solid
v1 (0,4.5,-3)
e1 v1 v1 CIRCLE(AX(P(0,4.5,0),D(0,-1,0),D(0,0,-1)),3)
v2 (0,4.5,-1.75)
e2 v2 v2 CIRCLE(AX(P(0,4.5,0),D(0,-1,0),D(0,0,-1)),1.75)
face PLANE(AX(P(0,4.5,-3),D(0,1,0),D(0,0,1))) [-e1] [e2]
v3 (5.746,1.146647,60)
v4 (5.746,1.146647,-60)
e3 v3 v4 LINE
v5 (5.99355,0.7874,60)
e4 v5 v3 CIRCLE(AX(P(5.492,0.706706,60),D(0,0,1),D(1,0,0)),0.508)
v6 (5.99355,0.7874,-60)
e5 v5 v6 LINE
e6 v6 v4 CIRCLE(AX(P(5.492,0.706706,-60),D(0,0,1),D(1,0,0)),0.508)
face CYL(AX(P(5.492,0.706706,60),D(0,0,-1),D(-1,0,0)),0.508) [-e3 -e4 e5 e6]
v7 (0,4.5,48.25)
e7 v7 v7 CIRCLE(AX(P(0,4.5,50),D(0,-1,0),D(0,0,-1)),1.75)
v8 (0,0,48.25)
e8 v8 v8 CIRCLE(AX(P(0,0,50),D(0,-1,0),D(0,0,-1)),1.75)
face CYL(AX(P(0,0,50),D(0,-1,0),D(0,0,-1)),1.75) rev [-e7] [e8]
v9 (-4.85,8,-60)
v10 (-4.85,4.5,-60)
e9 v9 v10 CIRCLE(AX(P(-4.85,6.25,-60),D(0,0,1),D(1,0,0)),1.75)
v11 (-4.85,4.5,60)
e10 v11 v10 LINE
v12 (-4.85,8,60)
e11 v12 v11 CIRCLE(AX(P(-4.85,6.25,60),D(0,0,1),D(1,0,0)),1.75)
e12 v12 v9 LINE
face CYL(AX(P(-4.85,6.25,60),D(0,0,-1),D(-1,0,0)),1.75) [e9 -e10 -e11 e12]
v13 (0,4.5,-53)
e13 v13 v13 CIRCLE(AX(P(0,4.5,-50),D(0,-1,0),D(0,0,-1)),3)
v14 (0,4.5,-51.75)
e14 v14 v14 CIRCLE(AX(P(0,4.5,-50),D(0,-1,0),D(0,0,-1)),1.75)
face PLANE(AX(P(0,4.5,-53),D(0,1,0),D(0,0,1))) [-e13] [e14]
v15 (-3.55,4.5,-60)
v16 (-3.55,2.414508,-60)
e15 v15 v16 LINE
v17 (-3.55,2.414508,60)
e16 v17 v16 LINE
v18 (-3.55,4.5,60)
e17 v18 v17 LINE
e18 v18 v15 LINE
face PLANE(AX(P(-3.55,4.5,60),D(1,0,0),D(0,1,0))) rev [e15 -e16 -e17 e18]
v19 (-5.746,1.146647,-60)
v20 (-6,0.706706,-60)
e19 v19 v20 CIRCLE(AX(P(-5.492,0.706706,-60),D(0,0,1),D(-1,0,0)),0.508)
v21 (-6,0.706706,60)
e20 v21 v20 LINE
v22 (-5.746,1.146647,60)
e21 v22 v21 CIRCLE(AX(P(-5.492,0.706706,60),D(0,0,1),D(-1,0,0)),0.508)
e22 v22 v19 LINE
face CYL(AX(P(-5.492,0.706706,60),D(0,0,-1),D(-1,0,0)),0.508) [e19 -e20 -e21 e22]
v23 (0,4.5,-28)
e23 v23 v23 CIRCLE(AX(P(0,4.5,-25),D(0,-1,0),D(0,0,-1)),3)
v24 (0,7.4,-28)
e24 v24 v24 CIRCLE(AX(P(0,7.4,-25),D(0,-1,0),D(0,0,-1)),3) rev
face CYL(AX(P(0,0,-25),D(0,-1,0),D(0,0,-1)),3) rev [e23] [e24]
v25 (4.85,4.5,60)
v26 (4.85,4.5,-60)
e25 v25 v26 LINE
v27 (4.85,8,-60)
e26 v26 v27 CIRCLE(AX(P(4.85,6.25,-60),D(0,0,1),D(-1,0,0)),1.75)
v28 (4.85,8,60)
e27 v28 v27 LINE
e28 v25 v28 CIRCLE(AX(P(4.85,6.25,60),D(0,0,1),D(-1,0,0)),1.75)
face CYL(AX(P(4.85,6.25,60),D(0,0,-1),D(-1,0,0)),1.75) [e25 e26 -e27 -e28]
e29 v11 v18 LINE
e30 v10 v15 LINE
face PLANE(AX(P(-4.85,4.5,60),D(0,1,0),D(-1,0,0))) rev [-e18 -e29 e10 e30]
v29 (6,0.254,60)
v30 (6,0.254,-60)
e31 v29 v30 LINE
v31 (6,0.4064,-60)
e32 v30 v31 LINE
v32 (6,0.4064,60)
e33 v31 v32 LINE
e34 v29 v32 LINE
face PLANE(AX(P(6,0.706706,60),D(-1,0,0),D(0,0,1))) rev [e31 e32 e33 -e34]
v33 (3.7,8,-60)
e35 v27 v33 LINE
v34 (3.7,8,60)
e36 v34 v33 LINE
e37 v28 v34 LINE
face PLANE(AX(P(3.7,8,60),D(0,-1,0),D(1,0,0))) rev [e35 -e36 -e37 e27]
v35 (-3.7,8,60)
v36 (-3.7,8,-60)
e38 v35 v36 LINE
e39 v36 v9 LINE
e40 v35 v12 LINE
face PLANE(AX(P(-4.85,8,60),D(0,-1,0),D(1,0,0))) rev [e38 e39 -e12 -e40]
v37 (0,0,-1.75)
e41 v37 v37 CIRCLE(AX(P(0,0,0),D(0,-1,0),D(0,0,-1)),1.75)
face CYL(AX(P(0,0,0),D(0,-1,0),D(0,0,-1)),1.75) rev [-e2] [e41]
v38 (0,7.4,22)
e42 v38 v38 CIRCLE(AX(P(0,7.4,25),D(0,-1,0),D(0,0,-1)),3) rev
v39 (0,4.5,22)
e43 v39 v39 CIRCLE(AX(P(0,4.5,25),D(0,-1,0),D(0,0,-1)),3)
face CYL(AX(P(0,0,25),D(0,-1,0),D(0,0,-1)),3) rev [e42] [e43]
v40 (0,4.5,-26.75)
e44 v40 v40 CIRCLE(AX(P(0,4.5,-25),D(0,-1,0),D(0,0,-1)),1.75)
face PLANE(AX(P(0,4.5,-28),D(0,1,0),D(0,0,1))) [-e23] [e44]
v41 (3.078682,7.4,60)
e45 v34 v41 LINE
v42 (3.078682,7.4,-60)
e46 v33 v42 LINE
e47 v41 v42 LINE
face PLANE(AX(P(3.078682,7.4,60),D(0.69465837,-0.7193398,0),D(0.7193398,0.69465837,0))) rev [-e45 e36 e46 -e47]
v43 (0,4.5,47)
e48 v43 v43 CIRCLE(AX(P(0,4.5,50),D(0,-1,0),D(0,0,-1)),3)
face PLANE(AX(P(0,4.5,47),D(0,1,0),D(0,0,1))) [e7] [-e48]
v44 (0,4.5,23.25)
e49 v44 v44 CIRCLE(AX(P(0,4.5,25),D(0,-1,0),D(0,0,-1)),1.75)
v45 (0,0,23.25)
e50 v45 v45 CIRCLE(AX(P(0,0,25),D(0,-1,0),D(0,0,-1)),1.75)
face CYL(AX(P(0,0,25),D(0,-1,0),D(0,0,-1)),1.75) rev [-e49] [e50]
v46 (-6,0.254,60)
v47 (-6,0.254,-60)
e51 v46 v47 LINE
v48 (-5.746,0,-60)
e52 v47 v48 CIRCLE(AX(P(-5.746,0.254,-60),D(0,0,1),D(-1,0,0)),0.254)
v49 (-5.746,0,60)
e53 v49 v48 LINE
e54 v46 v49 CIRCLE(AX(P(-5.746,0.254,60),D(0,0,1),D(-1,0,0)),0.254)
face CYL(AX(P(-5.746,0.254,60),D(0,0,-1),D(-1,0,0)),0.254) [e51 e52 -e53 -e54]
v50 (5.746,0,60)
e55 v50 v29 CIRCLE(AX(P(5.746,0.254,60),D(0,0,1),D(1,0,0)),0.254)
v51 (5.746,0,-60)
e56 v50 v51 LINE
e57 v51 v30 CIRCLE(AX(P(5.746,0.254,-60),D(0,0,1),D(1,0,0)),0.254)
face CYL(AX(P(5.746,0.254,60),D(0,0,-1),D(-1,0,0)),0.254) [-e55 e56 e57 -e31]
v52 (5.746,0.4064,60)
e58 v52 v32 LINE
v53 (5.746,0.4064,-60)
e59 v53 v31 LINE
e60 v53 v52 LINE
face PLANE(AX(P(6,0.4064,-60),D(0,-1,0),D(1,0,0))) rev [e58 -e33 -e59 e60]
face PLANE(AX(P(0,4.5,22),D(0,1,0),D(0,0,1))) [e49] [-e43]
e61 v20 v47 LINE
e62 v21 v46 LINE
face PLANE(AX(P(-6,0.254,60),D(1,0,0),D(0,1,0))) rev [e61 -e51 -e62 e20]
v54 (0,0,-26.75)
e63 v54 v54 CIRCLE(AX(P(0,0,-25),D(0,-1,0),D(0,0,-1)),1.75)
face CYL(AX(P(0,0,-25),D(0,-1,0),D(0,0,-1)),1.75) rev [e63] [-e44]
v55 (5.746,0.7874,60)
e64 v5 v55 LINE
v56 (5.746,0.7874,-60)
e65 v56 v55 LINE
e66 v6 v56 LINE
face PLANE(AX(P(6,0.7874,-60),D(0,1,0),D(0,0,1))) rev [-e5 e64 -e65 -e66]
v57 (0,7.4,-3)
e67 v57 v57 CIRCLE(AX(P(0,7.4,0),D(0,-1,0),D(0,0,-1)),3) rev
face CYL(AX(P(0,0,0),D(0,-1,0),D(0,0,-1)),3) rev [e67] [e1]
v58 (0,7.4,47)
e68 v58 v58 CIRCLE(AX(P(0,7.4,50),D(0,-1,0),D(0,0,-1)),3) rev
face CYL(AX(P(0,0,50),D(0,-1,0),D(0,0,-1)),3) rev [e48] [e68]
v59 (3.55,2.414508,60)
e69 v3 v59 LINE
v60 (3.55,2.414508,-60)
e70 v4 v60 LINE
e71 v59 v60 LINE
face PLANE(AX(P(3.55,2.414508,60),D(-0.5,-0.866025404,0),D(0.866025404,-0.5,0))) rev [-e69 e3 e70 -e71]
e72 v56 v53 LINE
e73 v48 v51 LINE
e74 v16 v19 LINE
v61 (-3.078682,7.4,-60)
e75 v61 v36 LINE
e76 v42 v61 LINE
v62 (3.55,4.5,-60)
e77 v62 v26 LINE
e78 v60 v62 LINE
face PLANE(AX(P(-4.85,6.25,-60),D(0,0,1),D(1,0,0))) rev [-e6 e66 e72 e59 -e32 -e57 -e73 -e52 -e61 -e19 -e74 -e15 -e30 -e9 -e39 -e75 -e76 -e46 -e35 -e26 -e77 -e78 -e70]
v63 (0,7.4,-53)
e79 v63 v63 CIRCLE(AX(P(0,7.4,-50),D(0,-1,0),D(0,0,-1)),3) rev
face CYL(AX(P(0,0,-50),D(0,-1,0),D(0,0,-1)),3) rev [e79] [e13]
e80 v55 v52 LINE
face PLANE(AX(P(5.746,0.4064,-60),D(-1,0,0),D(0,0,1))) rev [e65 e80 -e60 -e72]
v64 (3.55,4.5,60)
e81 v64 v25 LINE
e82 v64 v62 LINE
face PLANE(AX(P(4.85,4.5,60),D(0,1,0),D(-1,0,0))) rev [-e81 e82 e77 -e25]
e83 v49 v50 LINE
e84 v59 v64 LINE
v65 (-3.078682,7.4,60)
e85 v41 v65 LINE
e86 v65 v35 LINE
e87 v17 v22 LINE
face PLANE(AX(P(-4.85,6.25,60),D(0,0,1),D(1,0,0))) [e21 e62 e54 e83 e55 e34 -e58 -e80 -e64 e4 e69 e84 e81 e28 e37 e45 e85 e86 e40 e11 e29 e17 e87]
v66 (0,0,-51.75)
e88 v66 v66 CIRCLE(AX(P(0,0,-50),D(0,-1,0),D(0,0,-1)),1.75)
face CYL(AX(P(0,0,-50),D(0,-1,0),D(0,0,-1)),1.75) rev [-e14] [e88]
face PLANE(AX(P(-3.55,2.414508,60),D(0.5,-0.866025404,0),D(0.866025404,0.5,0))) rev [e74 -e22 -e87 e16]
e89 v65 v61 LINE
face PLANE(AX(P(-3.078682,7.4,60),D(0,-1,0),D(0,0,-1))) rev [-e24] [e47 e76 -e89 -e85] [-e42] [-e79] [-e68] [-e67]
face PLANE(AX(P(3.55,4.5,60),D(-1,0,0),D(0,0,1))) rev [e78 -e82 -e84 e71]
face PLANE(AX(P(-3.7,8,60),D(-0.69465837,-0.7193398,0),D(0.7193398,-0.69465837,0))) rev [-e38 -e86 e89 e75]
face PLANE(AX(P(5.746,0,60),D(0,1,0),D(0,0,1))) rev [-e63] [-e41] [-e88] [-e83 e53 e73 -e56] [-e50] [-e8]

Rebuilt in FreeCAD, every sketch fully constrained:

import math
import FreeCAD as App
import Part
import Sketcher
Q = App.Units.Quantity

doc = App.newDocument("Part")
body = doc.addObject("PartDesign::Body", "Body")

sketch1 = doc.addObject("Sketcher::SketchObject", "Sketch")
body.addObject(sketch1)
sketch1.AttachmentSupport = (doc.XY_Plane, [""])
sketch1.MapMode = "FlatFace"
sketch1.addGeometry([
    Part.LineSegment(App.Vector(-3.7, 8, 0), App.Vector(-4.85, 8, 0)),
    Part.ArcOfCircle(Part.Circle(App.Vector(-4.85, 6.25, 0), App.Vector(0, 0, 1), 1.75), math.radians(90), math.radians(270)),
    Part.LineSegment(App.Vector(-4.85, 4.5, 0), App.Vector(-3.55, 4.5, 0)),
    Part.LineSegment(App.Vector(-3.55, 4.5, 0), App.Vector(-3.55, 2.414508, 0)),
    Part.LineSegment(App.Vector(-3.55, 2.414508, 0), App.Vector(-5.746, 1.146647, 0)),
    Part.ArcOfCircle(Part.Circle(App.Vector(-5.492, 0.706706, 0), App.Vector(0, 0, 1), 0.508), math.radians(120), math.radians(180)),
    Part.LineSegment(App.Vector(-6, 0.706706, 0), App.Vector(-6, 0.254, 0)),
    Part.ArcOfCircle(Part.Circle(App.Vector(-5.746, 0.254, 0), App.Vector(0, 0, 1), 0.254), math.radians(-180), math.radians(-90)),
    Part.LineSegment(App.Vector(-5.746, 0, 0), App.Vector(5.746, 0, 0)),
    Part.ArcOfCircle(Part.Circle(App.Vector(5.746, 0.254, 0), App.Vector(0, 0, 1), 0.254), math.radians(-90), math.radians(0)),
    Part.LineSegment(App.Vector(6, 0.254, 0), App.Vector(6, 0.706706, 0)),
    Part.ArcOfCircle(Part.Circle(App.Vector(5.492, 0.706706, 0), App.Vector(0, 0, 1), 0.508), math.radians(0), math.radians(60)),
    Part.LineSegment(App.Vector(5.746, 1.146647, 0), App.Vector(3.55, 2.414508, 0)),
    Part.LineSegment(App.Vector(3.55, 2.414508, 0), App.Vector(3.55, 4.5, 0)),
    Part.LineSegment(App.Vector(3.55, 4.5, 0), App.Vector(4.85, 4.5, 0)),
    Part.ArcOfCircle(Part.Circle(App.Vector(4.85, 6.25, 0), App.Vector(0, 0, 1), 1.75), math.radians(-90), math.radians(90)),
    Part.LineSegment(App.Vector(4.85, 8, 0), App.Vector(3.7, 8, 0)),
    Part.LineSegment(App.Vector(3.7, 8, 0), App.Vector(3.078682, 7.4, 0)),
    Part.LineSegment(App.Vector(3.078682, 7.4, 0), App.Vector(-3.078682, 7.4, 0)),
    Part.LineSegment(App.Vector(-3.078682, 7.4, 0), App.Vector(-3.7, 8, 0)),
], False)
sketch1.addConstraint([
    Sketcher.Constraint("Tangent", 0, 2, 1, 1),
    Sketcher.Constraint("Tangent", 1, 2, 2, 1),
    Sketcher.Constraint("Coincident", 2, 2, 3, 1),
    Sketcher.Constraint("Coincident", 3, 2, 4, 1),
    Sketcher.Constraint("Tangent", 4, 2, 5, 1),
    Sketcher.Constraint("Tangent", 5, 2, 6, 1),
    Sketcher.Constraint("Tangent", 6, 2, 7, 1),
    Sketcher.Constraint("Tangent", 7, 2, 8, 1),
    Sketcher.Constraint("Tangent", 8, 2, 9, 1),
    Sketcher.Constraint("Tangent", 9, 2, 10, 1),
    Sketcher.Constraint("Tangent", 10, 2, 11, 1),
    Sketcher.Constraint("Tangent", 11, 2, 12, 1),
    Sketcher.Constraint("Coincident", 12, 2, 13, 1),
    Sketcher.Constraint("Coincident", 13, 2, 14, 1),
    Sketcher.Constraint("Tangent", 14, 2, 15, 1),
    Sketcher.Constraint("Tangent", 15, 2, 16, 1),
    Sketcher.Constraint("Coincident", 16, 2, 17, 1),
    Sketcher.Constraint("Coincident", 17, 2, 18, 1),
    Sketcher.Constraint("Coincident", 18, 2, 19, 1),
    Sketcher.Constraint("Coincident", 19, 2, 0, 1),
    Sketcher.Constraint("Horizontal", 0),
    Sketcher.Constraint("Horizontal", 2),
    Sketcher.Constraint("Vertical", 3),
    Sketcher.Constraint("Vertical", 6),
    Sketcher.Constraint("Horizontal", 8),
    Sketcher.Constraint("Vertical", 10),
    Sketcher.Constraint("Vertical", 13),
    Sketcher.Constraint("Horizontal", 14),
    Sketcher.Constraint("Horizontal", 16),
    Sketcher.Constraint("Horizontal", 18),
    Sketcher.Constraint("Equal", 7, 9),
    Sketcher.Constraint("Equal", 5, 11),
    Sketcher.Constraint("Equal", 1, 15),
    Sketcher.Constraint("Symmetric", 7, 2, 8, 2, -1, 1),
    Sketcher.Constraint("Symmetric", 1, 3, 15, 3, -2),
    Sketcher.Constraint("Symmetric", 4, 2, 11, 2, -2),
    Sketcher.Constraint("Horizontal", 3, 2, 12, 2),
    Sketcher.Constraint("Vertical", 7, 3, 4, 2),
    Sketcher.Constraint("Equal", 0, 16),
    Sketcher.Constraint("Equal", 17, 19),
    Sketcher.Constraint("Angle", 4, Q("-150 deg")),
    Sketcher.Constraint("Angle", 17, Q("-136 deg")),
    Sketcher.Constraint("Radius", 1, Q("1.75 mm")),
    Sketcher.Constraint("DistanceX", 2, 1, 2, 2, Q("1.3 mm")),
    Sketcher.Constraint("DistanceY", -1, 1, 0, 2, Q("8 mm")),
    Sketcher.Constraint("DistanceX", 5, 2, -1, 1, Q("6 mm")),
    Sketcher.Constraint("Radius", 5, Q("0.508 mm")),
    Sketcher.Constraint("DistanceX", 0, 2, 0, 1, Q("1.15 mm")),
    Sketcher.Constraint("DistanceX", -1, 1, 16, 2, Q("3.7 mm")),
    Sketcher.Constraint("DistanceY", -1, 1, 17, 2, Q("7.4 mm")),
    Sketcher.Constraint("DistanceY", 3, 2, 3, 1, Q("2.085492 mm")),
])
pad1 = doc.addObject("PartDesign::Pad", "Pad")
body.addObject(pad1)
pad1.Profile = sketch1
pad1.Length = 120
pad1.Midplane = True

sketch2 = doc.addObject("Sketcher::SketchObject", "Sketch001")
body.addObject(sketch2)
sketch2.AttachmentSupport = (doc.XY_Plane, [""])
sketch2.MapMode = "FlatFace"
sketch2.addGeometry([
    Part.LineSegment(App.Vector(5.746, 0.7874, 0), App.Vector(5.746, 0.4064, 0)),
    Part.LineSegment(App.Vector(5.746, 0.4064, 0), App.Vector(6, 0.4064, 0)),
    Part.LineSegment(App.Vector(6, 0.4064, 0), App.Vector(6, 0.7874, 0)),
    Part.LineSegment(App.Vector(6, 0.7874, 0), App.Vector(5.746, 0.7874, 0)),
], False)
sketch2.addConstraint([
    Sketcher.Constraint("Coincident", 0, 2, 1, 1),
    Sketcher.Constraint("Coincident", 1, 2, 2, 1),
    Sketcher.Constraint("Coincident", 2, 2, 3, 1),
    Sketcher.Constraint("Coincident", 3, 2, 0, 1),
    Sketcher.Constraint("Vertical", 0),
    Sketcher.Constraint("Horizontal", 1),
    Sketcher.Constraint("Vertical", 2),
    Sketcher.Constraint("Horizontal", 3),
    Sketcher.Constraint("DistanceX", -1, 1, 1, 2, Q("6 mm")),
    Sketcher.Constraint("DistanceX", 1, 1, 1, 2, Q("0.254 mm")),
    Sketcher.Constraint("DistanceY", 0, 2, 0, 1, Q("0.381 mm")),
    Sketcher.Constraint("DistanceY", -1, 1, 0, 2, Q("0.4064 mm")),
])
pocket1 = doc.addObject("PartDesign::Pocket", "Pocket")
body.addObject(pocket1)
pocket1.Profile = sketch2
pocket1.Type = "ThroughAll"
pocket1.Midplane = True

sketch3 = doc.addObject("Sketcher::SketchObject", "Sketch002")
body.addObject(sketch3)
sketch3.AttachmentSupport = (doc.YZ_Plane, [""])
sketch3.MapMode = "FlatFace"
sketch3.addGeometry([
    Part.LineSegment(App.Vector(4.5, 53, 0), App.Vector(4.5, 51.75, 0)),
    Part.LineSegment(App.Vector(4.5, 51.75, 0), App.Vector(0, 51.75, 0)),
    Part.LineSegment(App.Vector(0, 51.75, 0), App.Vector(0, 50, 0)),
    Part.LineSegment(App.Vector(0, 50, 0), App.Vector(8, 50, 0)),
    Part.LineSegment(App.Vector(8, 50, 0), App.Vector(8, 53, 0)),
    Part.LineSegment(App.Vector(8, 53, 0), App.Vector(4.5, 53, 0)),
], False)
sketch3.addGeometry(Part.LineSegment(App.Vector(0, 50, 0), App.Vector(8, 50, 0)), True)
sketch3.addConstraint([
    Sketcher.Constraint("Coincident", 0, 2, 1, 1),
    Sketcher.Constraint("Coincident", 1, 2, 2, 1),
    Sketcher.Constraint("Coincident", 2, 2, 3, 1),
    Sketcher.Constraint("Coincident", 3, 2, 4, 1),
    Sketcher.Constraint("Coincident", 4, 2, 5, 1),
    Sketcher.Constraint("Coincident", 5, 2, 0, 1),
    Sketcher.Constraint("Vertical", 0),
    Sketcher.Constraint("Horizontal", 1),
    Sketcher.Constraint("Vertical", 2),
    Sketcher.Constraint("Horizontal", 3),
    Sketcher.Constraint("Vertical", 4),
    Sketcher.Constraint("Horizontal", 5),
    Sketcher.Constraint("Horizontal", 6),
    Sketcher.Constraint("Coincident", 6, 1, 2, 2),
    Sketcher.Constraint("PointOnObject", 1, 2, -2),
    Sketcher.Constraint("Vertical", 4, 2, 6, 2),
    Sketcher.Constraint("DistanceX", 3, 1, 3, 2, Q("8 mm")),
    Sketcher.Constraint("DistanceY", 4, 1, 4, 2, Q("3 mm")),
    Sketcher.Constraint("DistanceX", 1, 2, 1, 1, Q("4.5 mm")),
    Sketcher.Constraint("DistanceY", -1, 1, 2, 2, Q("50 mm")),
    Sketcher.Constraint("DistanceY", 0, 2, 0, 1, Q("1.25 mm")),
])
groove = doc.addObject("PartDesign::Groove", "Groove")
body.addObject(groove)
groove.Profile = sketch3
groove.ReferenceAxis = (sketch3, ["Axis0"])
groove.Angle = 360
doc.recompute()

linearpattern = doc.addObject("PartDesign::LinearPattern", "LinearPattern")
body.addObject(linearpattern)
linearpattern.Originals = [groove]
linearpattern.Direction = (doc.Z_Axis, [""])
linearpattern.Mode = "offset"
linearpattern.Offset = 25
linearpattern.Occurrences = 5
linearpattern.Reversed = True
body.Tip = linearpattern

doc.recompute()
